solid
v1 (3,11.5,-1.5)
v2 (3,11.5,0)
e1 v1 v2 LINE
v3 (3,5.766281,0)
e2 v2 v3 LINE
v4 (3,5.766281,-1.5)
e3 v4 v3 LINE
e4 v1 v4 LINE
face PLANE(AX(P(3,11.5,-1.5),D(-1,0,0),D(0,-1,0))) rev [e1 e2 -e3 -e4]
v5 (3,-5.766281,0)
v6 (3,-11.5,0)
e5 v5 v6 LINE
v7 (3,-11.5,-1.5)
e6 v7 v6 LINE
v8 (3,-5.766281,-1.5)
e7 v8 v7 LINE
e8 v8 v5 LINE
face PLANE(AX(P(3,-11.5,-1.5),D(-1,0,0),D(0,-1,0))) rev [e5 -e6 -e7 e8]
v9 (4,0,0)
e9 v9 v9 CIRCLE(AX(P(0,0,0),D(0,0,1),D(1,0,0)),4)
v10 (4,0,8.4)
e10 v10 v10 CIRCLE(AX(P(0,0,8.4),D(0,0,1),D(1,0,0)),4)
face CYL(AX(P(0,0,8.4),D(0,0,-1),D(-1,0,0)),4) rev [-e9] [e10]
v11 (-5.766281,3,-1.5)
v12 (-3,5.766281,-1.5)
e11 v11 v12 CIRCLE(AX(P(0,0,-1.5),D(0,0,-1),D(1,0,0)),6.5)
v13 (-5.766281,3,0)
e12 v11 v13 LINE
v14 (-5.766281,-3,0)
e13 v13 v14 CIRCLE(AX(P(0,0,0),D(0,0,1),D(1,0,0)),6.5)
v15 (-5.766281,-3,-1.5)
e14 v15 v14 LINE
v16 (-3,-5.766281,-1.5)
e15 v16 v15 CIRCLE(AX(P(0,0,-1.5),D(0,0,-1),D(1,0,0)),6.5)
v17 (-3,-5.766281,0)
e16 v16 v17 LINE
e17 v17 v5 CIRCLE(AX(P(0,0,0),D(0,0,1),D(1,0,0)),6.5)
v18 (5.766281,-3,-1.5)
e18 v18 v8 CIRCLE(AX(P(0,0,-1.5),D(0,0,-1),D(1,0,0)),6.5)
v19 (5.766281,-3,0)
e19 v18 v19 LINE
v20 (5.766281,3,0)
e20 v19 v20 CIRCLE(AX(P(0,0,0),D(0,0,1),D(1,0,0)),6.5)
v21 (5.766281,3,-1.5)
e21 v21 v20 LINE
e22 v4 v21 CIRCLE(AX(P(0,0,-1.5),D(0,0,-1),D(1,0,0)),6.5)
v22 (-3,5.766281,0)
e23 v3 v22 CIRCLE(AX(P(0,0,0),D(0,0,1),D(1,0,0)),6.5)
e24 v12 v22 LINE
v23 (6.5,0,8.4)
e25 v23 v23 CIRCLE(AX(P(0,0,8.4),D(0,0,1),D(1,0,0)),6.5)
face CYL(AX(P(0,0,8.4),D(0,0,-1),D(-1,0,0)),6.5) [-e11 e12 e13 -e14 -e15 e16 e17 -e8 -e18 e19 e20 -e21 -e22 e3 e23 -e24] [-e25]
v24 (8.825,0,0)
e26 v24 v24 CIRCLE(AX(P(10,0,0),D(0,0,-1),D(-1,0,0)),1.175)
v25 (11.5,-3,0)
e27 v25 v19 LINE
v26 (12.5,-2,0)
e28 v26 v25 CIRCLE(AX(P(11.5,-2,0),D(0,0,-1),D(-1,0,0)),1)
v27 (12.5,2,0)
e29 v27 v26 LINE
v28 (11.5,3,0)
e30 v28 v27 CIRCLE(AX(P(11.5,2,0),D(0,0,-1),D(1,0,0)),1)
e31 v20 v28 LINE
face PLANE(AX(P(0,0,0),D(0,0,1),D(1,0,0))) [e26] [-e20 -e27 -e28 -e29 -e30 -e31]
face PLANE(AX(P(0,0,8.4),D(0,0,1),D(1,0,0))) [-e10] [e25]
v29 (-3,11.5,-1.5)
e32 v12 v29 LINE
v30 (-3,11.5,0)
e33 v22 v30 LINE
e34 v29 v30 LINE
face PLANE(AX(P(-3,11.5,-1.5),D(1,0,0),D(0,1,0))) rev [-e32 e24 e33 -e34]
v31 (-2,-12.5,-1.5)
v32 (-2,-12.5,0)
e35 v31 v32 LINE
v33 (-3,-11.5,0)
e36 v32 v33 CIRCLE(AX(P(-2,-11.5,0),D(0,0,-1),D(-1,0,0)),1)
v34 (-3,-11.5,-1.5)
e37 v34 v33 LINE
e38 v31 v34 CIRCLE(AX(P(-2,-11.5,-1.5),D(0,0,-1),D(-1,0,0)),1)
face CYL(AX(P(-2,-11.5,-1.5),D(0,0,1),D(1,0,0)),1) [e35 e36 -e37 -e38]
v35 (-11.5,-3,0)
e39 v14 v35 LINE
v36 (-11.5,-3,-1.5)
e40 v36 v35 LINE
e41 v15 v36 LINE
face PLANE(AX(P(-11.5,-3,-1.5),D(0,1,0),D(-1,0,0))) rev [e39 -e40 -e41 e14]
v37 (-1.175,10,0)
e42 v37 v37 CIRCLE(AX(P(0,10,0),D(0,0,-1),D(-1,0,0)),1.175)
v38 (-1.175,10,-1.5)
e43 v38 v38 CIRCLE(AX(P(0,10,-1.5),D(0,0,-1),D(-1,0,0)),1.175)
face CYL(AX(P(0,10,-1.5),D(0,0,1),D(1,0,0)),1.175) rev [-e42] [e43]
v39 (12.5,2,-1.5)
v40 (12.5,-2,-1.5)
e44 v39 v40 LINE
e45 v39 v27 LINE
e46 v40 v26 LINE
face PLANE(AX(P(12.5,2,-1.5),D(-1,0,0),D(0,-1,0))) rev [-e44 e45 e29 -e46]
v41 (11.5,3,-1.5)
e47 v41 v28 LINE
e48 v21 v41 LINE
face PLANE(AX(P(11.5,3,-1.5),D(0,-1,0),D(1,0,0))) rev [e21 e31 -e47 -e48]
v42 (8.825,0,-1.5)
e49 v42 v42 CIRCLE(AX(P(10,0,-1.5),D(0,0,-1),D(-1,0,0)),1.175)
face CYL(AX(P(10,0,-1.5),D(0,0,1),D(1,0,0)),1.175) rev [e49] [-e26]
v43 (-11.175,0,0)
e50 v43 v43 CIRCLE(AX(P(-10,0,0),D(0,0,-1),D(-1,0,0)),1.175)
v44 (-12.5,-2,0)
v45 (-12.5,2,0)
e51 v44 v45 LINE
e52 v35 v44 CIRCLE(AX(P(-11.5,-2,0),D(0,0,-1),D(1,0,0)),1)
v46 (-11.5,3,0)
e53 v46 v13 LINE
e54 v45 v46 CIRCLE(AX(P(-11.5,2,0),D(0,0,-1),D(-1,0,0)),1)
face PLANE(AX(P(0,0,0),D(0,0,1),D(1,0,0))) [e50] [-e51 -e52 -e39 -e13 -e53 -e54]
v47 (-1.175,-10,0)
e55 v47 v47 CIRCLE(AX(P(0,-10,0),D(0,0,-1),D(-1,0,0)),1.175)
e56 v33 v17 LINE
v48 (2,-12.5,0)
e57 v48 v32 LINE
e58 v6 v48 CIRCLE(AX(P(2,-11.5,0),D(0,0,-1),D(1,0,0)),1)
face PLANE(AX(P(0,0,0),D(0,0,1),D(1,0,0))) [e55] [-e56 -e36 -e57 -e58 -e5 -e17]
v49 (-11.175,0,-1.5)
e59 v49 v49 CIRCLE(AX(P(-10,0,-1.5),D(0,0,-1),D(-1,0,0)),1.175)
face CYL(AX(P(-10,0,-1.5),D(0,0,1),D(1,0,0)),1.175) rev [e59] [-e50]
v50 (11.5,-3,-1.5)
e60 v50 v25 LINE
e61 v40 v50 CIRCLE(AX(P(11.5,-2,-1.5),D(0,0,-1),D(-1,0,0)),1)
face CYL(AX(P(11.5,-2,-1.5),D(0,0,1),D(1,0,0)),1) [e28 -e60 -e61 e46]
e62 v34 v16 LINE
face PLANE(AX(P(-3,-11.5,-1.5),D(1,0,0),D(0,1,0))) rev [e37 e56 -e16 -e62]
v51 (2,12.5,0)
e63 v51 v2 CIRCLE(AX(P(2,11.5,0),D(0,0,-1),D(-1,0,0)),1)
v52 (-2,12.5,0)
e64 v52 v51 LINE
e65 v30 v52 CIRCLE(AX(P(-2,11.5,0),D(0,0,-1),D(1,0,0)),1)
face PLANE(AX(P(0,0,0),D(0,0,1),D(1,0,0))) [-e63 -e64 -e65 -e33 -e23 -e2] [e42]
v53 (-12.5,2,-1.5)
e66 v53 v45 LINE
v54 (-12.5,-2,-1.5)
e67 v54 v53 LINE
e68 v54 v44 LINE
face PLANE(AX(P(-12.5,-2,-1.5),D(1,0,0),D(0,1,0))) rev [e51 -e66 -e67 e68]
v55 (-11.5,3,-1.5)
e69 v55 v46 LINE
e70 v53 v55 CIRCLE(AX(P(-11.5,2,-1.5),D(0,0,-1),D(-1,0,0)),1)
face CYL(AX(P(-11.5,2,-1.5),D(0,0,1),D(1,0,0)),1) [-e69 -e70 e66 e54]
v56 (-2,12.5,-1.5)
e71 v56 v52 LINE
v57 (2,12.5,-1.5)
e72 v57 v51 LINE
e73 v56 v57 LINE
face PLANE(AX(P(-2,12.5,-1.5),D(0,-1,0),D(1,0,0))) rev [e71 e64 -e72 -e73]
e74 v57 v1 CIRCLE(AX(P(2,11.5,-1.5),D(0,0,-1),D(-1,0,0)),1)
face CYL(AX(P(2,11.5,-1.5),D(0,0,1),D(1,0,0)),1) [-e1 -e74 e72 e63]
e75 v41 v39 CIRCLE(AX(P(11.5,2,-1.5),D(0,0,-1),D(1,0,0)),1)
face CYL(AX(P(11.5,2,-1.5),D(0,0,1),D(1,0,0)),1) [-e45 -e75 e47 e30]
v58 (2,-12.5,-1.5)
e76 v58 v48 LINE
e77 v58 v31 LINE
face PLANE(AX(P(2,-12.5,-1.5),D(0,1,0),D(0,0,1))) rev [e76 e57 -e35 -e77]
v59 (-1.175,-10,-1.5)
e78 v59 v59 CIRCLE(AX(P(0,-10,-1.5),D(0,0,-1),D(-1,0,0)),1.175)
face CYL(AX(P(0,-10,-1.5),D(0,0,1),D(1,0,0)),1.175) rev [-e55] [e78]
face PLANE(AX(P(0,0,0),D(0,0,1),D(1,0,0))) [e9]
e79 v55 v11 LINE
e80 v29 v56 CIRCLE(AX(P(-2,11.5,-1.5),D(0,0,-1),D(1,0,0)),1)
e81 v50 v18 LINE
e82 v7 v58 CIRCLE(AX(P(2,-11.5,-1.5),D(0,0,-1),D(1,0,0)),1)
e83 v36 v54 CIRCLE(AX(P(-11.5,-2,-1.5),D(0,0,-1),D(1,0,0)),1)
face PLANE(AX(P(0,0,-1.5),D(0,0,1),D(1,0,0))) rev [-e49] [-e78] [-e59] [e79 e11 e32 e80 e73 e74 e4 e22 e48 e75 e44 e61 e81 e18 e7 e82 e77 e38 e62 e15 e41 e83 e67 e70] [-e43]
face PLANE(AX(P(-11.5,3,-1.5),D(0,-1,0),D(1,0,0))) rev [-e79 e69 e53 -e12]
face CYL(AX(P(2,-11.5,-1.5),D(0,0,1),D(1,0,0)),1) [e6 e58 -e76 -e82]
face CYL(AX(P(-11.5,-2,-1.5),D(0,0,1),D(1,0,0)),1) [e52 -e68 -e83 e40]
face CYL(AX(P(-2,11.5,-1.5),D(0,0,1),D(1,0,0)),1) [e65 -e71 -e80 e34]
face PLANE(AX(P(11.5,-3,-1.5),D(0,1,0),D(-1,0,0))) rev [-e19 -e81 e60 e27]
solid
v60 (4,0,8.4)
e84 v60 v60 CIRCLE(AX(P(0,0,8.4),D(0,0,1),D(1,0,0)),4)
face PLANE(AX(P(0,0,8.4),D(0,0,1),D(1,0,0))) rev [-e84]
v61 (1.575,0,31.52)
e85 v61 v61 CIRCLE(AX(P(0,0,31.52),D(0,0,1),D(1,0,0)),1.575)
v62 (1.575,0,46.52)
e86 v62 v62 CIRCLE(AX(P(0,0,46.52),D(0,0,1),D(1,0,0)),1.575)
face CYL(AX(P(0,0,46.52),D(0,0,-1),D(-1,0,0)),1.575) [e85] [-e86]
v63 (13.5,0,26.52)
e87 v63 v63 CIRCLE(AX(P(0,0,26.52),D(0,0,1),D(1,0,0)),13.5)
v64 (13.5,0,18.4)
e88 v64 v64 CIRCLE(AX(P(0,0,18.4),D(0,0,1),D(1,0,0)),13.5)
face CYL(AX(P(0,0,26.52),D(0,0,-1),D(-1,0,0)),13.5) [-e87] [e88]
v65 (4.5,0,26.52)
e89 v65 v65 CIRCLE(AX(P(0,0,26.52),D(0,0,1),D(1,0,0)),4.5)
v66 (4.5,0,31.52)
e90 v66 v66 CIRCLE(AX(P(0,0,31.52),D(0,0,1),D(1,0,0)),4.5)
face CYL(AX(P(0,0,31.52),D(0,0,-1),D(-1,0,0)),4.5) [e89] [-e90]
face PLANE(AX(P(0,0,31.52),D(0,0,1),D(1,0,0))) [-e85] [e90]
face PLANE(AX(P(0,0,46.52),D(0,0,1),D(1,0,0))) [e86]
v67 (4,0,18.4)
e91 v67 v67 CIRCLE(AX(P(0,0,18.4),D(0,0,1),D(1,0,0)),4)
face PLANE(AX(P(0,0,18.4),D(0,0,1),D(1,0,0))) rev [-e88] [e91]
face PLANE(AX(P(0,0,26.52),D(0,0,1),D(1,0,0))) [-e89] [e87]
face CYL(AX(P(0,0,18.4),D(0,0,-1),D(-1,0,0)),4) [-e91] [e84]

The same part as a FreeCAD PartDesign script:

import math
import FreeCAD as App
import Part
import Sketcher
Q = App.Units.Quantity

doc = App.newDocument("Part")
body = doc.addObject("PartDesign::Body", "Body")

sketch1 = body.newObject("Sketcher::SketchObject", "Sketch")
sketch1.AttachmentSupport = (doc.getObject("XY_Plane"), [""])
sketch1.MapMode = "FlatFace"
sketch1.addGeometry([
    Part.Circle(App.Vector(0, 0, 0), App.Vector(0, 0, 1), 6.5),
    Part.Circle(App.Vector(0, 0, 0), App.Vector(0, 0, 1), 4),
], False)
sketch1.addConstraint([
    Sketcher.Constraint("Coincident", 0, 3, -1, 1),
    Sketcher.Constraint("Coincident", 1, 3, -1, 1),
    Sketcher.Constraint("Diameter", 0, Q("13 mm")),
    Sketcher.Constraint("Diameter", 1, Q("8 mm")),
])
pad1 = body.newObject("PartDesign::Pad", "Pad")
pad1.Profile = sketch1
pad1.Length = 8.4

sketch2 = body.newObject("Sketcher::SketchObject", "Sketch001")
sketch2.AttachmentSupport = (doc.getObject("XY_Plane"), [""])
sketch2.MapMode = "FlatFace"
sketch2.AttachmentOffset = App.Placement(App.Vector(0, 0, -1.5), App.Rotation())
sketch2.addGeometry([
    Part.LineSegment(App.Vector(2, -12.5, 0), App.Vector(-2, -12.5, 0)),
    Part.ArcOfCircle(Part.Circle(App.Vector(-2, -11.5, 0), App.Vector(0, 0, 1), 1), math.radians(-180), math.radians(-90)),
    Part.LineSegment(App.Vector(-3, -11.5, 0), App.Vector(-3, -5.766281, 0)),
    Part.ArcOfCircle(Part.Circle(App.Vector(0, 0, 0), App.Vector(0, 0, 1), 6.5), math.radians(-152.513574), math.radians(-117.486426)),
    Part.LineSegment(App.Vector(-5.766281, -3, 0), App.Vector(-11.5, -3, 0)),
    Part.ArcOfCircle(Part.Circle(App.Vector(-11.5, -2, 0), App.Vector(0, 0, 1), 1), math.radians(-180), math.radians(-90)),
    Part.LineSegment(App.Vector(-12.5, -2, 0), App.Vector(-12.5, 2, 0)),
    Part.ArcOfCircle(Part.Circle(App.Vector(-11.5, 2, 0), App.Vector(0, 0, 1), 1), math.radians(90), math.radians(180)),
    Part.LineSegment(App.Vector(-11.5, 3, 0), App.Vector(-5.766281, 3, 0)),
    Part.ArcOfCircle(Part.Circle(App.Vector(0, 0, 0), App.Vector(0, 0, 1), 6.5), math.radians(117.486426), math.radians(152.513574)),
    Part.LineSegment(App.Vector(-3, 5.766281, 0), App.Vector(-3, 11.5, 0)),
    Part.ArcOfCircle(Part.Circle(App.Vector(-2, 11.5, 0), App.Vector(0, 0, 1), 1), math.radians(90), math.radians(180)),
    Part.LineSegment(App.Vector(-2, 12.5, 0), App.Vector(2, 12.5, 0)),
    Part.ArcOfCircle(Part.Circle(App.Vector(2, 11.5, 0), App.Vector(0, 0, 1), 1), math.radians(0), math.radians(90)),
    Part.LineSegment(App.Vector(3, 11.5, 0), App.Vector(3, 5.766281, 0)),
    Part.ArcOfCircle(Part.Circle(App.Vector(0, 0, 0), App.Vector(0, 0, 1), 6.5), math.radians(27.486426), math.radians(62.513574)),
    Part.LineSegment(App.Vector(5.766281, 3, 0), App.Vector(11.5, 3, 0)),
    Part.ArcOfCircle(Part.Circle(App.Vector(11.5, 2, 0), App.Vector(0, 0, 1), 1), math.radians(0), math.radians(90)),
    Part.LineSegment(App.Vector(12.5, 2, 0), App.Vector(12.5, -2, 0)),
    Part.ArcOfCircle(Part.Circle(App.Vector(11.5, -2, 0), App.Vector(0, 0, 1), 1), math.radians(-90), math.radians(0)),
    Part.LineSegment(App.Vector(11.5, -3, 0), App.Vector(5.766281, -3, 0)),
    Part.ArcOfCircle(Part.Circle(App.Vector(0, 0, 0), App.Vector(0, 0, 1), 6.5), math.radians(-62.513574), math.radians(-27.486426)),
    Part.LineSegment(App.Vector(3, -5.766281, 0), App.Vector(3, -11.5, 0)),
    Part.ArcOfCircle(Part.Circle(App.Vector(2, -11.5, 0), App.Vector(0, 0, 1), 1), math.radians(-90), math.radians(0)),
    Part.Circle(App.Vector(0, -10, 0), App.Vector(0, 0, 1), 1.175),
    Part.Circle(App.Vector(10, 0, 0), App.Vector(0, 0, 1), 1.175),
    Part.Circle(App.Vector(-10, 0, 0), App.Vector(0, 0, 1), 1.175),
    Part.Circle(App.Vector(0, 10, 0), App.Vector(0, 0, 1), 1.175),
], False)
sketch2.addConstraint([
    Sketcher.Constraint("Tangent", 0, 2, 1, 2),
    Sketcher.Constraint("Tangent", 1, 1, 2, 1),
    Sketcher.Constraint("Coincident", 2, 2, 3, 2),
    Sketcher.Constraint("Coincident", 3, 1, 4, 1),
    Sketcher.Constraint("Tangent", 4, 2, 5, 2),
    Sketcher.Constraint("Tangent", 5, 1, 6, 1),
    Sketcher.Constraint("Tangent", 6, 2, 7, 2),
    Sketcher.Constraint("Tangent", 7, 1, 8, 1),
    Sketcher.Constraint("Coincident", 8, 2, 9, 2),
    Sketcher.Constraint("Coincident", 9, 1, 10, 1),
    Sketcher.Constraint("Tangent", 10, 2, 11, 2),
    Sketcher.Constraint("Tangent", 11, 1, 12, 1),
    Sketcher.Constraint("Tangent", 12, 2, 13, 2),
    Sketcher.Constraint("Tangent", 13, 1, 14, 1),
    Sketcher.Constraint("Coincident", 14, 2, 15, 2),
    Sketcher.Constraint("Coincident", 15, 1, 16, 1),
    Sketcher.Constraint("Tangent", 16, 2, 17, 2),
    Sketcher.Constraint("Tangent", 17, 1, 18, 1),
    Sketcher.Constraint("Tangent", 18, 2, 19, 2),
    Sketcher.Constraint("Tangent", 19, 1, 20, 1),
    Sketcher.Constraint("Coincident", 20, 2, 21, 2),
    Sketcher.Constraint("Coincident", 21, 1, 22, 1),
    Sketcher.Constraint("Tangent", 22, 2, 23, 2),
    Sketcher.Constraint("Tangent", 23, 1, 0, 1),
    Sketcher.Constraint("Horizontal", 0),
    Sketcher.Constraint("Vertical", 2),
    Sketcher.Constraint("Horizontal", 4),
    Sketcher.Constraint("Vertical", 6),
    Sketcher.Constraint("Horizontal", 8),
    Sketcher.Constraint("Vertical", 10),
    Sketcher.Constraint("Horizontal", 12),
    Sketcher.Constraint("Vertical", 14),
    Sketcher.Constraint("Horizontal", 16),
    Sketcher.Constraint("Vertical", 18),
    Sketcher.Constraint("Horizontal", 20),
    Sketcher.Constraint("Vertical", 22),
    Sketcher.Constraint("Coincident", 3, 3, -1, 1),
    Sketcher.Constraint("Coincident", 9, 3, -1, 1),
    Sketcher.Constraint("Coincident", 15, 3, -1, 1),
    Sketcher.Constraint("Coincident", 21, 3, -1, 1),
    Sketcher.Constraint("Equal", 1, 5),
    Sketcher.Constraint("Equal", 5, 7),
    Sketcher.Constraint("Equal", 3, 9),
    Sketcher.Constraint("Equal", 7, 11),
    Sketcher.Constraint("Equal", 11, 13),
    Sketcher.Constraint("Equal", 9, 15),
    Sketcher.Constraint("Equal", 13, 17),
    Sketcher.Constraint("Equal", 17, 19),
    Sketcher.Constraint("Equal", 15, 21),
    Sketcher.Constraint("Equal", 19, 23),
    Sketcher.Constraint("Equal", 24, 25),
    Sketcher.Constraint("Equal", 25, 26),
    Sketcher.Constraint("Equal", 26, 27),
    Sketcher.Constraint("Symmetric", 1, 3, 13, 3, -1, 1),
    Sketcher.Constraint("Symmetric", 5, 3, 17, 3, -1, 1),
    Sketcher.Constraint("Symmetric", 25, 3, 26, 3, -1, 1),
    Sketcher.Constraint("Symmetric", 24, 3, 27, 3, -1, 1),
    Sketcher.Constraint("PointOnObject", 24, 3, -2),
    Sketcher.Constraint("PointOnObject", 25, 3, -1),
    Sketcher.Constraint("Horizontal", 7, 3, 17, 3),
    Sketcher.Constraint("Horizontal", 5, 3, 19, 3),
    Sketcher.Constraint("Horizontal", 9, 1, 14, 2),
    Sketcher.Constraint("Horizontal", 2, 2, 21, 1),
    Sketcher.Constraint("Equal", 20, 2),
    Sketcher.Constraint("Equal", 12, 6),
    Sketcher.Constraint("Radius", 1, Q("1 mm")),
    Sketcher.Constraint("Radius", 3, Q("6.5 mm")),
    Sketcher.Constraint("Diameter", 24, Q("2.35 mm")),
    Sketcher.Constraint("DistanceX", 0, 2, 0, 1, Q("4 mm")),
    Sketcher.Constraint("DistanceY", 24, 3, -1, 1, Q("10 mm")),
    Sketcher.Constraint("DistanceX", -1, 1, 25, 3, Q("10 mm")),
    Sketcher.Constraint("DistanceY", 1, 3, 11, 3, Q("23 mm")),
])
pad2 = body.newObject("PartDesign::Pad", "Pad001")
pad2.Profile = sketch2
pad2.Length = 1.5
body2 = doc.addObject("PartDesign::Body", "Body001")

sketch3 = body2.newObject("Sketcher::SketchObject", "Sketch002")
sketch3.AttachmentSupport = (doc.getObject("XY_Plane001"), [""])
sketch3.MapMode = "FlatFace"
sketch3.AttachmentOffset = App.Placement(App.Vector(0, 0, 8.4), App.Rotation())
sketch3.addGeometry(Part.Circle(App.Vector(0, 0, 0), App.Vector(0, 0, 1), 4), False)
sketch3.addConstraint([
    Sketcher.Constraint("Coincident", 0, 3, -1, 1),
    Sketcher.Constraint("Diameter", 0, Q("8 mm")),
])
pad3 = body2.newObject("PartDesign::Pad", "Pad002")
pad3.Profile = sketch3
pad3.Length = 10

sketch4 = body2.newObject("Sketcher::SketchObject", "Sketch003")
sketch4.AttachmentSupport = (doc.getObject("XY_Plane001"), [""])
sketch4.MapMode = "FlatFace"
sketch4.AttachmentOffset = App.Placement(App.Vector(0, 0, 18.4), App.Rotation())
sketch4.addGeometry(Part.Circle(App.Vector(0, 0, 0), App.Vector(0, 0, 1), 13.5), False)
sketch4.addConstraint([
    Sketcher.Constraint("Coincident", 0, 3, -1, 1),
    Sketcher.Constraint("Diameter", 0, Q("27 mm")),
])
pad4 = body2.newObject("PartDesign::Pad", "Pad003")
pad4.Profile = sketch4
pad4.Length = 8.12

sketch5 = body2.newObject("Sketcher::SketchObject", "Sketch004")
sketch5.AttachmentSupport = (doc.getObject("XY_Plane001"), [""])
sketch5.MapMode = "FlatFace"
sketch5.AttachmentOffset = App.Placement(App.Vector(0, 0, 26.52), App.Rotation())
sketch5.addGeometry(Part.Circle(App.Vector(0, 0, 0), App.Vector(0, 0, 1), 4.5), False)
sketch5.addConstraint([
    Sketcher.Constraint("Coincident", 0, 3, -1, 1),
    Sketcher.Constraint("Diameter", 0, Q("9 mm")),
])
pad5 = body2.newObject("PartDesign::Pad", "Pad004")
pad5.Profile = sketch5
pad5.Length = 5

sketch6 = body2.newObject("Sketcher::SketchObject", "Sketch005")
sketch6.AttachmentSupport = (doc.getObject("XY_Plane001"), [""])
sketch6.MapMode = "FlatFace"
sketch6.AttachmentOffset = App.Placement(App.Vector(0, 0, 31.52), App.Rotation())
sketch6.addGeometry(Part.Circle(App.Vector(0, 0, 0), App.Vector(0, 0, 1), 1.575), False)
sketch6.addConstraint([
    Sketcher.Constraint("Coincident", 0, 3, -1, 1),
    Sketcher.Constraint("Diameter", 0, Q("3.15 mm")),
])
pad6 = body2.newObject("PartDesign::Pad", "Pad005")
pad6.Profile = sketch6
pad6.Length = 15

doc.recompute()
